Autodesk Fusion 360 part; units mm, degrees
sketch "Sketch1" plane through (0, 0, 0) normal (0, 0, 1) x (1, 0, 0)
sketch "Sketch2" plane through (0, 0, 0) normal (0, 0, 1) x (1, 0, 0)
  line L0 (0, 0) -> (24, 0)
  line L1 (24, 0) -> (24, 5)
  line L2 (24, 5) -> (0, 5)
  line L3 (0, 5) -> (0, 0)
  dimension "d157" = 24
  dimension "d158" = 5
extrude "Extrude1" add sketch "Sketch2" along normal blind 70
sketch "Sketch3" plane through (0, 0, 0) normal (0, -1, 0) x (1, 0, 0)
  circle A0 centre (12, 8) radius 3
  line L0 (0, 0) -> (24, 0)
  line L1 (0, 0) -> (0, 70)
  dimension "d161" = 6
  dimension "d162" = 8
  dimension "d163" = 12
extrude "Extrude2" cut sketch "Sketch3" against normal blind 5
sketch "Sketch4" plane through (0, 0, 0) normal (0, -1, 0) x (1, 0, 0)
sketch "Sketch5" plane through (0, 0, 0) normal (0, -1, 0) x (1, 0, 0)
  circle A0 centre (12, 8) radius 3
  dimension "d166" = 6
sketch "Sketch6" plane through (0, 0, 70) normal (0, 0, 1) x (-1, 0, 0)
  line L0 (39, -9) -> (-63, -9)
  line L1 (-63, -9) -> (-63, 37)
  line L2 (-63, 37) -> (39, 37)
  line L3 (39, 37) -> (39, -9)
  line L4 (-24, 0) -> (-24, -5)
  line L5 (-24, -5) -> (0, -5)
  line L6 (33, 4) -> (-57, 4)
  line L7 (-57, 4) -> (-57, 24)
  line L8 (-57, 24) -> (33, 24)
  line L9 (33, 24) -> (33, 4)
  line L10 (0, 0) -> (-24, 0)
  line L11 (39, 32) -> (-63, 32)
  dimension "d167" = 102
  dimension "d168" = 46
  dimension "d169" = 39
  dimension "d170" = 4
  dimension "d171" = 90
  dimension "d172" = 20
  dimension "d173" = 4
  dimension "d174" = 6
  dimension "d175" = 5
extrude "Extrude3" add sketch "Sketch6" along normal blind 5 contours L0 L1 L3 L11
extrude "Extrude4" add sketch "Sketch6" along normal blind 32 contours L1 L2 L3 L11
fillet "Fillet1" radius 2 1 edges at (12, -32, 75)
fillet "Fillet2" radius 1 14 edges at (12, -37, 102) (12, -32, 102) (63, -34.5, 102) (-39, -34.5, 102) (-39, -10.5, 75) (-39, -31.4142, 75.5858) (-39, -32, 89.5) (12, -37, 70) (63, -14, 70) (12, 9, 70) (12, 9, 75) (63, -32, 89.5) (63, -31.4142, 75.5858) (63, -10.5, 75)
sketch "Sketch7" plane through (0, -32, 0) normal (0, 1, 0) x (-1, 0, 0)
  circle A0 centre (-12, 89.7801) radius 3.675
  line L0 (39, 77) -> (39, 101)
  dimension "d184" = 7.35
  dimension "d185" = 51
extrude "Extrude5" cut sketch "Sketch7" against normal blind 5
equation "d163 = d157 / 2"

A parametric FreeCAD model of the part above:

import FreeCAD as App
import Part
import Sketcher
from FreeCAD import Vector
Q = App.Units.Quantity


def edges_at(feature, points):
    """Names of the edges that pass closest to the given points."""
    edges = feature.Shape.Edges
    near = lambda p: min(range(len(edges)), key=lambda i: edges[i].distToShape(Part.Vertex(*p))[0])
    return sorted({f"Edge{near(p) + 1}" for p in points})

doc = App.newDocument("Part")
params = doc.addObject("Spreadsheet::Sheet", "Params")
for row, (alias, value) in enumerate([
    ("sketch1_width", "24 mm"),
    ("sketch1_height", "5 mm"),
    ("pad1_length", "70 mm"),
    ("sketch2_diameter", "6 mm"),
    ("pocket1_length", "5 mm"),
    ("sketch3_width", "102 mm"),
    ("sketch3_width2", "90 mm"),
    ("sketch3_height", "20 mm"),
    ("sketch3_height2", "41 mm"),
    ("pad2_length", "5 mm"),
    ("sketch4_width", "102 mm"),
    ("sketch4_height", "5 mm"),
    ("pad3_length", "32 mm"),
    ("fillet_radius", "2 mm"),
    ("fillet2_radius", "1 mm"),
    ("sketch5_diameter", "7.35 mm"),
    ("pocket2_length", "5 mm"),
], start=1):
    params.set(f"A{row}", alias)
    params.set(f"B{row}", "=" + value)
    params.setAlias(f"B{row}", alias)

body = doc.addObject("PartDesign::Body", "Body")

sketch1 = body.newObject("Sketcher::SketchObject", "Sketch")
sketch1.AttachmentSupport = (doc.getObject("XY_Plane"), [""])
sketch1.MapMode = "FlatFace"
sketch1.addGeometry([
    Part.LineSegment(Vector(0, 5, 0), Vector(0, 0, 0)),
    Part.LineSegment(Vector(0, 0, 0), Vector(24, 0, 0)),
    Part.LineSegment(Vector(24, 0, 0), Vector(24, 5, 0)),
    Part.LineSegment(Vector(24, 5, 0), Vector(0, 5, 0)),
], False)
sketch1.addConstraint([
    Sketcher.Constraint("Coincident", 0, 2, 1, 1),
    Sketcher.Constraint("Coincident", 1, 2, 2, 1),
    Sketcher.Constraint("Coincident", 2, 2, 3, 1),
    Sketcher.Constraint("Coincident", 3, 2, 0, 1),
    Sketcher.Constraint("Vertical", 0),
    Sketcher.Constraint("Horizontal", 1),
    Sketcher.Constraint("Vertical", 2),
    Sketcher.Constraint("Horizontal", 3),
    Sketcher.Constraint("Coincident", 0, 2, -1, 1),
    Sketcher.Constraint("DistanceX", 1, 1, 1, 2, Q("24 mm")),
    Sketcher.Constraint("DistanceY", 0, 2, 0, 1, Q("5 mm")),
])
sketch1.setExpression("Constraints[9]", "Params.sketch1_width")
sketch1.setExpression("Constraints[10]", "Params.sketch1_height")
pad1 = body.newObject("PartDesign::Pad", "Pad")
pad1.Profile = sketch1
pad1.setExpression("Length", "Params.pad1_length")

sketch2 = body.newObject("Sketcher::SketchObject", "Sketch001")
sketch2.AttachmentSupport = (doc.getObject("XZ_Plane"), [""])
sketch2.MapMode = "FlatFace"
sketch2.addGeometry(Part.Circle(Vector(12, 8, 0), Vector(0, 0, 1), 3), False)
sketch2.addConstraint([
    Sketcher.Constraint("Diameter", 0, Q("6 mm")),
    Sketcher.Constraint("DistanceX", -1, 1, 0, 3, Q("12 mm")),
    Sketcher.Constraint("DistanceY", -1, 1, 0, 3, Q("8 mm")),
])
sketch2.setExpression("Constraints[0]", "Params.sketch2_diameter")
pocket1 = body.newObject("PartDesign::Pocket", "Pocket")
pocket1.Profile = sketch2
pocket1.setExpression("Length", "Params.pocket1_length")

sketch3 = body.newObject("Sketcher::SketchObject", "Sketch002")
sketch3.AttachmentSupport = (doc.getObject("XY_Plane"), [""])
sketch3.MapMode = "FlatFace"
sketch3.AttachmentOffset = App.Placement(Vector(0, 0, 70), App.Rotation())
sketch3.addGeometry([
    Part.LineSegment(Vector(63, 9, 0), Vector(-39, 9, 0)),
    Part.LineSegment(Vector(-39, 9, 0), Vector(-39, -32, 0)),
    Part.LineSegment(Vector(-39, -32, 0), Vector(63, -32, 0)),
    Part.LineSegment(Vector(63, -32, 0), Vector(63, 9, 0)),
    Part.LineSegment(Vector(-33, -24, 0), Vector(-33, -4, 0)),
    Part.LineSegment(Vector(-33, -4, 0), Vector(57, -4, 0)),
    Part.LineSegment(Vector(57, -4, 0), Vector(57, -24, 0)),
    Part.LineSegment(Vector(57, -24, 0), Vector(-33, -24, 0)),
], False)
sketch3.addConstraint([
    Sketcher.Constraint("Coincident", 0, 2, 1, 1),
    Sketcher.Constraint("Coincident", 1, 2, 2, 1),
    Sketcher.Constraint("Coincident", 2, 2, 3, 1),
    Sketcher.Constraint("Coincident", 3, 2, 0, 1),
    Sketcher.Constraint("Coincident", 4, 2, 5, 1),
    Sketcher.Constraint("Coincident", 5, 2, 6, 1),
    Sketcher.Constraint("Coincident", 6, 2, 7, 1),
    Sketcher.Constraint("Coincident", 7, 2, 4, 1),
    Sketcher.Constraint("Horizontal", 0),
    Sketcher.Constraint("Vertical", 1),
    Sketcher.Constraint("Horizontal", 2),
    Sketcher.Constraint("Vertical", 3),
    Sketcher.Constraint("Vertical", 4),
    Sketcher.Constraint("Horizontal", 5),
    Sketcher.Constraint("Vertical", 6),
    Sketcher.Constraint("Horizontal", 7),
    Sketcher.Constraint("DistanceX", 0, 2, 0, 1, Q("102 mm")),
    Sketcher.Constraint("DistanceX", 5, 1, 5, 2, Q("90 mm")),
    Sketcher.Constraint("DistanceY", 4, 1, 4, 2, Q("20 mm")),
    Sketcher.Constraint("DistanceX", 0, 2, -1, 1, Q("39 mm")),
    Sketcher.Constraint("DistanceY", 4, 2, -1, 1, Q("4 mm")),
    Sketcher.Constraint("DistanceX", 0, 2, 4, 2, Q("6 mm")),
    Sketcher.Constraint("DistanceY", 1, 2, 1, 1, Q("41 mm")),
    Sketcher.Constraint("DistanceY", -1, 1, 0, 2, Q("9 mm")),
])
sketch3.setExpression("Constraints[16]", "Params.sketch3_width")
sketch3.setExpression("Constraints[17]", "Params.sketch3_width2")
sketch3.setExpression("Constraints[18]", "Params.sketch3_height")
sketch3.setExpression("Constraints[22]", "Params.sketch3_height2")
pad2 = body.newObject("PartDesign::Pad", "Pad001")
pad2.Profile = sketch3
pad2.setExpression("Length", "Params.pad2_length")

sketch4 = body.newObject("Sketcher::SketchObject", "Sketch003")
sketch4.AttachmentSupport = (doc.getObject("XY_Plane"), [""])
sketch4.MapMode = "FlatFace"
sketch4.AttachmentOffset = App.Placement(Vector(0, 0, 70), App.Rotation())
sketch4.addGeometry([
    Part.LineSegment(Vector(63, -32, 0), Vector(-39, -32, 0)),
    Part.LineSegment(Vector(-39, -32, 0), Vector(-39, -37, 0)),
    Part.LineSegment(Vector(-39, -37, 0), Vector(63, -37, 0)),
    Part.LineSegment(Vector(63, -37, 0), Vector(63, -32, 0)),
], False)
sketch4.addConstraint([
    Sketcher.Constraint("Coincident", 0, 2, 1, 1),
    Sketcher.Constraint("Coincident", 1, 2, 2, 1),
    Sketcher.Constraint("Coincident", 2, 2, 3, 1),
    Sketcher.Constraint("Coincident", 3, 2, 0, 1),
    Sketcher.Constraint("Horizontal", 0),
    Sketcher.Constraint("Vertical", 1),
    Sketcher.Constraint("Horizontal", 2),
    Sketcher.Constraint("Vertical", 3),
    Sketcher.Constraint("DistanceX", 0, 2, 0, 1, Q("102 mm")),
    Sketcher.Constraint("DistanceY", 1, 2, 1, 1, Q("5 mm")),
    Sketcher.Constraint("DistanceX", 0, 2, -1, 1, Q("39 mm")),
    Sketcher.Constraint("DistanceY", 0, 2, -1, 1, Q("32 mm")),
])
sketch4.setExpression("Constraints[8]", "Params.sketch4_width")
sketch4.setExpression("Constraints[9]", "Params.sketch4_height")
pad3 = body.newObject("PartDesign::Pad", "Pad002")
pad3.Profile = sketch4
pad3.setExpression("Length", "Params.pad3_length")
doc.recompute()

fillet = body.newObject("PartDesign::Fillet", "Fillet")
fillet.Base = (pad3, edges_at(pad3, [(12, -32, 75)]))
fillet.setExpression("Radius", "Params.fillet_radius")
doc.recompute()

fillet2 = body.newObject("PartDesign::Fillet", "Fillet001")
fillet2.Base = (fillet, edges_at(fillet, [
    (12, -37, 102),
    (12, -32, 102),
    (63, -34.5, 102),
    (-39, -34.5, 102),
    (-39, -10.5, 75),
    (-39, -31.414, 75.586),
    (-39, -32, 89.5),
    (12, -37, 70),
    (63, -14, 70),
    (12, 9, 70),
    (12, 9, 75),
    (63, -32, 89.5),
    (63, -31.414, 75.586),
    (63, -10.5, 75),
]))
fillet2.setExpression("Radius", "Params.fillet2_radius")

sketch5 = body.newObject("Sketcher::SketchObject", "Sketch004")
sketch5.AttachmentSupport = (doc.getObject("XZ_Plane"), [""])
sketch5.MapMode = "FlatFace"
sketch5.AttachmentOffset = App.Placement(Vector(0, 0, 32), App.Rotation())
sketch5.addGeometry(Part.Circle(Vector(12, 89.8, 0), Vector(0, 0, 1), 3.7), False)
sketch5.addConstraint([
    Sketcher.Constraint("Diameter", 0, Q("7.35 mm")),
    Sketcher.Constraint("DistanceX", -1, 1, 0, 3, Q("12 mm")),
    Sketcher.Constraint("DistanceY", -1, 1, 0, 3, Q("89.78 mm")),
])
sketch5.setExpression("Constraints[0]", "Params.sketch5_diameter")
pocket2 = body.newObject("PartDesign::Pocket", "Pocket001")
pocket2.Profile = sketch5
pocket2.setExpression("Length", "Params.pocket2_length")
pocket2.Reversed = True

doc.recompute()
